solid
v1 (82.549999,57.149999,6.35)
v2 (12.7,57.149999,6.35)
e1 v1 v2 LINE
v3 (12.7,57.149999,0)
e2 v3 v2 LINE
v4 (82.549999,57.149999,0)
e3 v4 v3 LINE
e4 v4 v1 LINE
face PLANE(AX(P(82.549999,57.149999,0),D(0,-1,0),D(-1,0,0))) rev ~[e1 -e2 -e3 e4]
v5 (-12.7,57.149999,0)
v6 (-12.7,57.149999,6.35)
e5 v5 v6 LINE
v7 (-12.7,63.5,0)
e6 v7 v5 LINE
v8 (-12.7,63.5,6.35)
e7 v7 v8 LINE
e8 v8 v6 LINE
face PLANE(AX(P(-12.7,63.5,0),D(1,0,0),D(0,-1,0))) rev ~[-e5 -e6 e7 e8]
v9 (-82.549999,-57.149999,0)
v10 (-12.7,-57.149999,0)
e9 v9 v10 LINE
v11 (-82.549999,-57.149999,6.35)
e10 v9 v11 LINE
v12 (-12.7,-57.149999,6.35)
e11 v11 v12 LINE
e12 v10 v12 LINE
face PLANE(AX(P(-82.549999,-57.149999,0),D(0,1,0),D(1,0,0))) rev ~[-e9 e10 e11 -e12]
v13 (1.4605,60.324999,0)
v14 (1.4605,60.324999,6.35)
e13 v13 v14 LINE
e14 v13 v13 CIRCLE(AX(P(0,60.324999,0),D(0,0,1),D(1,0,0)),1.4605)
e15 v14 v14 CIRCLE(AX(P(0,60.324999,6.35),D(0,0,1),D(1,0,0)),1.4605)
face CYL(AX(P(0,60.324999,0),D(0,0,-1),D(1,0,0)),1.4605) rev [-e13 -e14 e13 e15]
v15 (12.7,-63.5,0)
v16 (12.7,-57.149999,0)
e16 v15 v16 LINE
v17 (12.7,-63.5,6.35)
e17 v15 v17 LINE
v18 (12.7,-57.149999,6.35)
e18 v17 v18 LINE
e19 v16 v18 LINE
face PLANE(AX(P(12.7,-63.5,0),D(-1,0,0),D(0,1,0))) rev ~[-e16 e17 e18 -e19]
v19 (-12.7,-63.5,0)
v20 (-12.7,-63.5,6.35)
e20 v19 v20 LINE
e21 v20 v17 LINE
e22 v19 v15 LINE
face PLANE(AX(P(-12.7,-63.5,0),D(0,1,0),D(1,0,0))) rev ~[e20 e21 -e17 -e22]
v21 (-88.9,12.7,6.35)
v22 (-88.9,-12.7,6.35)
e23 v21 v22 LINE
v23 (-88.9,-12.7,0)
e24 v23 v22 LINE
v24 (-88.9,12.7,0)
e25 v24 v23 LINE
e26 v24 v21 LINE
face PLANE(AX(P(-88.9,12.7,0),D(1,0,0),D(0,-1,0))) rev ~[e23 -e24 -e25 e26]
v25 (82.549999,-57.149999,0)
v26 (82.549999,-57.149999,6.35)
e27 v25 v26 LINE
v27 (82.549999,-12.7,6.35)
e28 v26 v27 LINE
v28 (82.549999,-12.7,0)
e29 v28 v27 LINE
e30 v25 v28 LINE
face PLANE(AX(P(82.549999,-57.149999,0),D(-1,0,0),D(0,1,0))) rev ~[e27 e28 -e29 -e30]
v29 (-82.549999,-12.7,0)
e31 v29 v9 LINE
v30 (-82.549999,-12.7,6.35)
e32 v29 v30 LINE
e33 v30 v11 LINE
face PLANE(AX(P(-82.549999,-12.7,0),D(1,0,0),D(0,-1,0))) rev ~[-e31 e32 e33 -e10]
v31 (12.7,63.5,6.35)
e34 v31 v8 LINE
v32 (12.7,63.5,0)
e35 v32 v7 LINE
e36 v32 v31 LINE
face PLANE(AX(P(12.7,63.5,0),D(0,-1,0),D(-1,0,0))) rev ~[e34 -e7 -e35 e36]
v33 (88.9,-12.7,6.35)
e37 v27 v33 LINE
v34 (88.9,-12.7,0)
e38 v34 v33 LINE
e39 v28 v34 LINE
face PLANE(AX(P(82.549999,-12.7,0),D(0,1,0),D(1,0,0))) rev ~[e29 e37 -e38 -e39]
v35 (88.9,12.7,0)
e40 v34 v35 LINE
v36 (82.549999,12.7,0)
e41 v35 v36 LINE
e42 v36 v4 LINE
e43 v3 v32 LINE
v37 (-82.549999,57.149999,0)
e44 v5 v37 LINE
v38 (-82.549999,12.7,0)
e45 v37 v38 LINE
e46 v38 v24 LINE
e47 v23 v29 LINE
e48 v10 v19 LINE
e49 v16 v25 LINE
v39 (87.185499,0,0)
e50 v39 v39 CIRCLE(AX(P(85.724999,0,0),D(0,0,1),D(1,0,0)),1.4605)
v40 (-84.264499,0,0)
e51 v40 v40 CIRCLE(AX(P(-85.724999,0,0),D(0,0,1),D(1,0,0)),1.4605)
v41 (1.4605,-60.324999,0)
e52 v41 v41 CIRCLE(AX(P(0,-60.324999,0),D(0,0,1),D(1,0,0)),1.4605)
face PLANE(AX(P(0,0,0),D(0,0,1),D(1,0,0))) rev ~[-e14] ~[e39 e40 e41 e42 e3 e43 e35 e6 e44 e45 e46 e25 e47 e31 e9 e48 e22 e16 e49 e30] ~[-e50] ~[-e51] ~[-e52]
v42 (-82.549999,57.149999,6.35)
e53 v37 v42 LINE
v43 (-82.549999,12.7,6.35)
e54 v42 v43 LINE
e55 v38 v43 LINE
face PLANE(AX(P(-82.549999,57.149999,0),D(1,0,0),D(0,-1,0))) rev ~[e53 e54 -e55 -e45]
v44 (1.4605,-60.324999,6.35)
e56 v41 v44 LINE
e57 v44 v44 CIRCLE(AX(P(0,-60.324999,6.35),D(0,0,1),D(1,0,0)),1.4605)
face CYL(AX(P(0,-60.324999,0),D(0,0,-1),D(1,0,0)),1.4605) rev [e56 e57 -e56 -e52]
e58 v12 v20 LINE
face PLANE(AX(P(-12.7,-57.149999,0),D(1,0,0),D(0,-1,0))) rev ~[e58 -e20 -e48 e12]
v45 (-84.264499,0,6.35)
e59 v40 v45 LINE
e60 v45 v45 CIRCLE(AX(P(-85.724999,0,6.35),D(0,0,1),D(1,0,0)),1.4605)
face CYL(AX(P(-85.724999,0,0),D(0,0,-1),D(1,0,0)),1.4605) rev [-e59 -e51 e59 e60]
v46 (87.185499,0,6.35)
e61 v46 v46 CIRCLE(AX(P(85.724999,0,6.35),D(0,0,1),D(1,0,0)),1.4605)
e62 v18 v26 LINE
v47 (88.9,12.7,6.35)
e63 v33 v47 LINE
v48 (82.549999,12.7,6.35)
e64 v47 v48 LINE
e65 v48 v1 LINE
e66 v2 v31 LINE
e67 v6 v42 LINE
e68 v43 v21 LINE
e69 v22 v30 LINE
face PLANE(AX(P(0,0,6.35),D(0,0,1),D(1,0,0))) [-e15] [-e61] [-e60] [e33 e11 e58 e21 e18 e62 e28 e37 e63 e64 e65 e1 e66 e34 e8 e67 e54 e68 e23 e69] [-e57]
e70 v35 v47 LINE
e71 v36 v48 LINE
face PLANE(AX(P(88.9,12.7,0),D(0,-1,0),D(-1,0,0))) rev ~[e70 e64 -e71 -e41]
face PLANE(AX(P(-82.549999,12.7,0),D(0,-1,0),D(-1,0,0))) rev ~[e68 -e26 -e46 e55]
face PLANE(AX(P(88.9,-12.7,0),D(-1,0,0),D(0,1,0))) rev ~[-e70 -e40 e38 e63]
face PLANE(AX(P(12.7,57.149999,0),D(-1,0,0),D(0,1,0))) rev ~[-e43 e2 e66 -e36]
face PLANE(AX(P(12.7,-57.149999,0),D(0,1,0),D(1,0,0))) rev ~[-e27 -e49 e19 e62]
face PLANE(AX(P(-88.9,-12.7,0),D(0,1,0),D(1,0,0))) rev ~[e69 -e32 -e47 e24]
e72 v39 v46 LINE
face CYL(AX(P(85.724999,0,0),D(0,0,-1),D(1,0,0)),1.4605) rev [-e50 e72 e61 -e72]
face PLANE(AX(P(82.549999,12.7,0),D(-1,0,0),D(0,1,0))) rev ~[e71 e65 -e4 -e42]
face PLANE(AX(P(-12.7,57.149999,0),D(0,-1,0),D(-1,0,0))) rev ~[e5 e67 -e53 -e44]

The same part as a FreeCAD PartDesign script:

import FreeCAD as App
import Part
import Sketcher
from FreeCAD import Vector
Q = App.Units.Quantity

doc = App.newDocument("Part")
body = doc.addObject("PartDesign::Body", "Body")

# Sketch on XY plane
sketch1 = doc.addObject("Sketcher::SketchObject", "Sketch")
body.addObject(sketch1)
sketch1.AttachmentSupport = (doc.XY_Plane, [""])
sketch1.MapMode = "FlatFace"
sketch1.addGeometry([
    Part.LineSegment(Vector(-12.7, -63.5, 0), Vector(12.7, -63.5, 0)),  # 0
    Part.LineSegment(Vector(12.7, -63.5, 0), Vector(12.7, -57.1, 0)),  # 1
    Part.LineSegment(Vector(12.7, -57.1, 0), Vector(82.5, -57.1, 0)),  # 2
    Part.LineSegment(Vector(82.5, -57.1, 0), Vector(82.5, -12.7, 0)),  # 3
    Part.LineSegment(Vector(82.5, -12.7, 0), Vector(88.9, -12.7, 0)),  # 4
    Part.LineSegment(Vector(88.9, -12.7, 0), Vector(88.9, 12.7, 0)),  # 5
    Part.LineSegment(Vector(88.9, 12.7, 0), Vector(82.5, 12.7, 0)),  # 6
    Part.LineSegment(Vector(82.5, 12.7, 0), Vector(82.5, 57.1, 0)),  # 7
    Part.LineSegment(Vector(82.5, 57.1, 0), Vector(12.7, 57.1, 0)),  # 8
    Part.LineSegment(Vector(12.7, 57.1, 0), Vector(12.7, 63.5, 0)),  # 9
    Part.LineSegment(Vector(12.7, 63.5, 0), Vector(-12.7, 63.5, 0)),  # 10
    Part.LineSegment(Vector(-12.7, 63.5, 0), Vector(-12.7, 57.1, 0)),  # 11
    Part.LineSegment(Vector(-12.7, 57.1, 0), Vector(-82.5, 57.1, 0)),  # 12
    Part.LineSegment(Vector(-82.5, 57.1, 0), Vector(-82.5, 12.7, 0)),  # 13
    Part.LineSegment(Vector(-82.5, 12.7, 0), Vector(-88.9, 12.7, 0)),  # 14
    Part.LineSegment(Vector(-88.9, 12.7, 0), Vector(-88.9, -12.7, 0)),  # 15
    Part.LineSegment(Vector(-88.9, -12.7, 0), Vector(-82.5, -12.7, 0)),  # 16
    Part.LineSegment(Vector(-82.5, -12.7, 0), Vector(-82.5, -57.1, 0)),  # 17
    Part.LineSegment(Vector(-82.5, -57.1, 0), Vector(-12.7, -57.1, 0)),  # 18
    Part.LineSegment(Vector(-12.7, -57.1, 0), Vector(-12.7, -63.5, 0)),  # 19
    Part.Circle(Vector(0, -60.3, 0), Vector(0, 0, 1), 1.5),  # 20
    Part.Circle(Vector(-85.7, 0, 0), Vector(0, 0, 1), 1.5),  # 21
    Part.Circle(Vector(85.7, 0, 0), Vector(0, 0, 1), 1.5),  # 22
    Part.Circle(Vector(0, 60.3, 0), Vector(0, 0, 1), 1.5),  # 23
], False)
sketch1.addConstraint([
    Sketcher.Constraint("Coincident", 0, 2, 1, 1),
    Sketcher.Constraint("Coincident", 1, 2, 2, 1),
    Sketcher.Constraint("Coincident", 2, 2, 3, 1),
    Sketcher.Constraint("Coincident", 3, 2, 4, 1),
    Sketcher.Constraint("Coincident", 4, 2, 5, 1),
    Sketcher.Constraint("Coincident", 5, 2, 6, 1),
    Sketcher.Constraint("Coincident", 6, 2, 7, 1),
    Sketcher.Constraint("Coincident", 7, 2, 8, 1),
    Sketcher.Constraint("Coincident", 8, 2, 9, 1),
    Sketcher.Constraint("Coincident", 9, 2, 10, 1),
    Sketcher.Constraint("Coincident", 10, 2, 11, 1),
    Sketcher.Constraint("Coincident", 11, 2, 12, 1),
    Sketcher.Constraint("Coincident", 12, 2, 13, 1),
    Sketcher.Constraint("Coincident", 13, 2, 14, 1),
    Sketcher.Constraint("Coincident", 14, 2, 15, 1),
    Sketcher.Constraint("Coincident", 15, 2, 16, 1),
    Sketcher.Constraint("Coincident", 16, 2, 17, 1),
    Sketcher.Constraint("Coincident", 17, 2, 18, 1),
    Sketcher.Constraint("Coincident", 18, 2, 19, 1),
    Sketcher.Constraint("Coincident", 19, 2, 0, 1),
    Sketcher.Constraint("Horizontal", 0),
    Sketcher.Constraint("Vertical", 1),
    Sketcher.Constraint("Horizontal", 2),
    Sketcher.Constraint("Vertical", 3),
    Sketcher.Constraint("Horizontal", 4),
    Sketcher.Constraint("Vertical", 5),
    Sketcher.Constraint("Horizontal", 6),
    Sketcher.Constraint("Vertical", 7),
    Sketcher.Constraint("Horizontal", 8),
    Sketcher.Constraint("Vertical", 9),
    Sketcher.Constraint("Horizontal", 10),
    Sketcher.Constraint("Vertical", 11),
    Sketcher.Constraint("Horizontal", 12),
    Sketcher.Constraint("Vertical", 13),
    Sketcher.Constraint("Horizontal", 14),
    Sketcher.Constraint("Vertical", 15),
    Sketcher.Constraint("Horizontal", 16),
    Sketcher.Constraint("Vertical", 17),
    Sketcher.Constraint("Horizontal", 18),
    Sketcher.Constraint("Vertical", 19),
    Sketcher.Constraint("Equal", 20, 21),
    Sketcher.Constraint("Equal", 21, 22),
    Sketcher.Constraint("Equal", 22, 23),
    Sketcher.Constraint("Symmetric", 21, 3, 22, 3, -1, 1),
    Sketcher.Constraint("Symmetric", 20, 3, 23, 3, -1, 1),
    Sketcher.Constraint("Symmetric", 0, 2, 10, 2, -1, 1),
    Sketcher.Constraint("Symmetric", 2, 2, 12, 2, -1, 1),
    Sketcher.Constraint("Symmetric", 4, 2, 14, 2, -1, 1),
    Sketcher.Constraint("Symmetric", 6, 2, 16, 2, -1, 1),
    Sketcher.Constraint("Symmetric", 8, 2, 18, 2, -1, 1),
    Sketcher.Constraint("Symmetric", 8, 2, 11, 2, -2),
    Sketcher.Constraint("Symmetric", 6, 2, 13, 2, -2),
    Sketcher.Constraint("PointOnObject", 20, 3, -2),
    Sketcher.Constraint("PointOnObject", 21, 3, -1),
    Sketcher.Constraint("Equal", 16, 1),
    Sketcher.Constraint("Equal", 10, 5),
    Sketcher.Constraint("DistanceX", 0, 1, 0, 2, Q("1 in")),
    Sketcher.Constraint("Diameter", 20, Q("0.115 in")),
    Sketcher.Constraint("DistanceY", 0, 2, 3, 2, Q("2 in")),
    Sketcher.Constraint("DistanceX", 1, 2, 4, 2, Q("3 in")),
    Sketcher.Constraint("DistanceX", 2, 1, 2, 2, Q("2.75 in")),
    Sketcher.Constraint("DistanceX", 21, 3, 22, 3, Q("6.7499999 in")),
    Sketcher.Constraint("DistanceY", 20, 3, 23, 3, Q("4.7499999 in")),
])
pad1 = doc.addObject("PartDesign::Pad", "Pad")
body.addObject(pad1)
pad1.Profile = sketch1
pad1.Length = Q("0.25 in")

doc.recompute()
